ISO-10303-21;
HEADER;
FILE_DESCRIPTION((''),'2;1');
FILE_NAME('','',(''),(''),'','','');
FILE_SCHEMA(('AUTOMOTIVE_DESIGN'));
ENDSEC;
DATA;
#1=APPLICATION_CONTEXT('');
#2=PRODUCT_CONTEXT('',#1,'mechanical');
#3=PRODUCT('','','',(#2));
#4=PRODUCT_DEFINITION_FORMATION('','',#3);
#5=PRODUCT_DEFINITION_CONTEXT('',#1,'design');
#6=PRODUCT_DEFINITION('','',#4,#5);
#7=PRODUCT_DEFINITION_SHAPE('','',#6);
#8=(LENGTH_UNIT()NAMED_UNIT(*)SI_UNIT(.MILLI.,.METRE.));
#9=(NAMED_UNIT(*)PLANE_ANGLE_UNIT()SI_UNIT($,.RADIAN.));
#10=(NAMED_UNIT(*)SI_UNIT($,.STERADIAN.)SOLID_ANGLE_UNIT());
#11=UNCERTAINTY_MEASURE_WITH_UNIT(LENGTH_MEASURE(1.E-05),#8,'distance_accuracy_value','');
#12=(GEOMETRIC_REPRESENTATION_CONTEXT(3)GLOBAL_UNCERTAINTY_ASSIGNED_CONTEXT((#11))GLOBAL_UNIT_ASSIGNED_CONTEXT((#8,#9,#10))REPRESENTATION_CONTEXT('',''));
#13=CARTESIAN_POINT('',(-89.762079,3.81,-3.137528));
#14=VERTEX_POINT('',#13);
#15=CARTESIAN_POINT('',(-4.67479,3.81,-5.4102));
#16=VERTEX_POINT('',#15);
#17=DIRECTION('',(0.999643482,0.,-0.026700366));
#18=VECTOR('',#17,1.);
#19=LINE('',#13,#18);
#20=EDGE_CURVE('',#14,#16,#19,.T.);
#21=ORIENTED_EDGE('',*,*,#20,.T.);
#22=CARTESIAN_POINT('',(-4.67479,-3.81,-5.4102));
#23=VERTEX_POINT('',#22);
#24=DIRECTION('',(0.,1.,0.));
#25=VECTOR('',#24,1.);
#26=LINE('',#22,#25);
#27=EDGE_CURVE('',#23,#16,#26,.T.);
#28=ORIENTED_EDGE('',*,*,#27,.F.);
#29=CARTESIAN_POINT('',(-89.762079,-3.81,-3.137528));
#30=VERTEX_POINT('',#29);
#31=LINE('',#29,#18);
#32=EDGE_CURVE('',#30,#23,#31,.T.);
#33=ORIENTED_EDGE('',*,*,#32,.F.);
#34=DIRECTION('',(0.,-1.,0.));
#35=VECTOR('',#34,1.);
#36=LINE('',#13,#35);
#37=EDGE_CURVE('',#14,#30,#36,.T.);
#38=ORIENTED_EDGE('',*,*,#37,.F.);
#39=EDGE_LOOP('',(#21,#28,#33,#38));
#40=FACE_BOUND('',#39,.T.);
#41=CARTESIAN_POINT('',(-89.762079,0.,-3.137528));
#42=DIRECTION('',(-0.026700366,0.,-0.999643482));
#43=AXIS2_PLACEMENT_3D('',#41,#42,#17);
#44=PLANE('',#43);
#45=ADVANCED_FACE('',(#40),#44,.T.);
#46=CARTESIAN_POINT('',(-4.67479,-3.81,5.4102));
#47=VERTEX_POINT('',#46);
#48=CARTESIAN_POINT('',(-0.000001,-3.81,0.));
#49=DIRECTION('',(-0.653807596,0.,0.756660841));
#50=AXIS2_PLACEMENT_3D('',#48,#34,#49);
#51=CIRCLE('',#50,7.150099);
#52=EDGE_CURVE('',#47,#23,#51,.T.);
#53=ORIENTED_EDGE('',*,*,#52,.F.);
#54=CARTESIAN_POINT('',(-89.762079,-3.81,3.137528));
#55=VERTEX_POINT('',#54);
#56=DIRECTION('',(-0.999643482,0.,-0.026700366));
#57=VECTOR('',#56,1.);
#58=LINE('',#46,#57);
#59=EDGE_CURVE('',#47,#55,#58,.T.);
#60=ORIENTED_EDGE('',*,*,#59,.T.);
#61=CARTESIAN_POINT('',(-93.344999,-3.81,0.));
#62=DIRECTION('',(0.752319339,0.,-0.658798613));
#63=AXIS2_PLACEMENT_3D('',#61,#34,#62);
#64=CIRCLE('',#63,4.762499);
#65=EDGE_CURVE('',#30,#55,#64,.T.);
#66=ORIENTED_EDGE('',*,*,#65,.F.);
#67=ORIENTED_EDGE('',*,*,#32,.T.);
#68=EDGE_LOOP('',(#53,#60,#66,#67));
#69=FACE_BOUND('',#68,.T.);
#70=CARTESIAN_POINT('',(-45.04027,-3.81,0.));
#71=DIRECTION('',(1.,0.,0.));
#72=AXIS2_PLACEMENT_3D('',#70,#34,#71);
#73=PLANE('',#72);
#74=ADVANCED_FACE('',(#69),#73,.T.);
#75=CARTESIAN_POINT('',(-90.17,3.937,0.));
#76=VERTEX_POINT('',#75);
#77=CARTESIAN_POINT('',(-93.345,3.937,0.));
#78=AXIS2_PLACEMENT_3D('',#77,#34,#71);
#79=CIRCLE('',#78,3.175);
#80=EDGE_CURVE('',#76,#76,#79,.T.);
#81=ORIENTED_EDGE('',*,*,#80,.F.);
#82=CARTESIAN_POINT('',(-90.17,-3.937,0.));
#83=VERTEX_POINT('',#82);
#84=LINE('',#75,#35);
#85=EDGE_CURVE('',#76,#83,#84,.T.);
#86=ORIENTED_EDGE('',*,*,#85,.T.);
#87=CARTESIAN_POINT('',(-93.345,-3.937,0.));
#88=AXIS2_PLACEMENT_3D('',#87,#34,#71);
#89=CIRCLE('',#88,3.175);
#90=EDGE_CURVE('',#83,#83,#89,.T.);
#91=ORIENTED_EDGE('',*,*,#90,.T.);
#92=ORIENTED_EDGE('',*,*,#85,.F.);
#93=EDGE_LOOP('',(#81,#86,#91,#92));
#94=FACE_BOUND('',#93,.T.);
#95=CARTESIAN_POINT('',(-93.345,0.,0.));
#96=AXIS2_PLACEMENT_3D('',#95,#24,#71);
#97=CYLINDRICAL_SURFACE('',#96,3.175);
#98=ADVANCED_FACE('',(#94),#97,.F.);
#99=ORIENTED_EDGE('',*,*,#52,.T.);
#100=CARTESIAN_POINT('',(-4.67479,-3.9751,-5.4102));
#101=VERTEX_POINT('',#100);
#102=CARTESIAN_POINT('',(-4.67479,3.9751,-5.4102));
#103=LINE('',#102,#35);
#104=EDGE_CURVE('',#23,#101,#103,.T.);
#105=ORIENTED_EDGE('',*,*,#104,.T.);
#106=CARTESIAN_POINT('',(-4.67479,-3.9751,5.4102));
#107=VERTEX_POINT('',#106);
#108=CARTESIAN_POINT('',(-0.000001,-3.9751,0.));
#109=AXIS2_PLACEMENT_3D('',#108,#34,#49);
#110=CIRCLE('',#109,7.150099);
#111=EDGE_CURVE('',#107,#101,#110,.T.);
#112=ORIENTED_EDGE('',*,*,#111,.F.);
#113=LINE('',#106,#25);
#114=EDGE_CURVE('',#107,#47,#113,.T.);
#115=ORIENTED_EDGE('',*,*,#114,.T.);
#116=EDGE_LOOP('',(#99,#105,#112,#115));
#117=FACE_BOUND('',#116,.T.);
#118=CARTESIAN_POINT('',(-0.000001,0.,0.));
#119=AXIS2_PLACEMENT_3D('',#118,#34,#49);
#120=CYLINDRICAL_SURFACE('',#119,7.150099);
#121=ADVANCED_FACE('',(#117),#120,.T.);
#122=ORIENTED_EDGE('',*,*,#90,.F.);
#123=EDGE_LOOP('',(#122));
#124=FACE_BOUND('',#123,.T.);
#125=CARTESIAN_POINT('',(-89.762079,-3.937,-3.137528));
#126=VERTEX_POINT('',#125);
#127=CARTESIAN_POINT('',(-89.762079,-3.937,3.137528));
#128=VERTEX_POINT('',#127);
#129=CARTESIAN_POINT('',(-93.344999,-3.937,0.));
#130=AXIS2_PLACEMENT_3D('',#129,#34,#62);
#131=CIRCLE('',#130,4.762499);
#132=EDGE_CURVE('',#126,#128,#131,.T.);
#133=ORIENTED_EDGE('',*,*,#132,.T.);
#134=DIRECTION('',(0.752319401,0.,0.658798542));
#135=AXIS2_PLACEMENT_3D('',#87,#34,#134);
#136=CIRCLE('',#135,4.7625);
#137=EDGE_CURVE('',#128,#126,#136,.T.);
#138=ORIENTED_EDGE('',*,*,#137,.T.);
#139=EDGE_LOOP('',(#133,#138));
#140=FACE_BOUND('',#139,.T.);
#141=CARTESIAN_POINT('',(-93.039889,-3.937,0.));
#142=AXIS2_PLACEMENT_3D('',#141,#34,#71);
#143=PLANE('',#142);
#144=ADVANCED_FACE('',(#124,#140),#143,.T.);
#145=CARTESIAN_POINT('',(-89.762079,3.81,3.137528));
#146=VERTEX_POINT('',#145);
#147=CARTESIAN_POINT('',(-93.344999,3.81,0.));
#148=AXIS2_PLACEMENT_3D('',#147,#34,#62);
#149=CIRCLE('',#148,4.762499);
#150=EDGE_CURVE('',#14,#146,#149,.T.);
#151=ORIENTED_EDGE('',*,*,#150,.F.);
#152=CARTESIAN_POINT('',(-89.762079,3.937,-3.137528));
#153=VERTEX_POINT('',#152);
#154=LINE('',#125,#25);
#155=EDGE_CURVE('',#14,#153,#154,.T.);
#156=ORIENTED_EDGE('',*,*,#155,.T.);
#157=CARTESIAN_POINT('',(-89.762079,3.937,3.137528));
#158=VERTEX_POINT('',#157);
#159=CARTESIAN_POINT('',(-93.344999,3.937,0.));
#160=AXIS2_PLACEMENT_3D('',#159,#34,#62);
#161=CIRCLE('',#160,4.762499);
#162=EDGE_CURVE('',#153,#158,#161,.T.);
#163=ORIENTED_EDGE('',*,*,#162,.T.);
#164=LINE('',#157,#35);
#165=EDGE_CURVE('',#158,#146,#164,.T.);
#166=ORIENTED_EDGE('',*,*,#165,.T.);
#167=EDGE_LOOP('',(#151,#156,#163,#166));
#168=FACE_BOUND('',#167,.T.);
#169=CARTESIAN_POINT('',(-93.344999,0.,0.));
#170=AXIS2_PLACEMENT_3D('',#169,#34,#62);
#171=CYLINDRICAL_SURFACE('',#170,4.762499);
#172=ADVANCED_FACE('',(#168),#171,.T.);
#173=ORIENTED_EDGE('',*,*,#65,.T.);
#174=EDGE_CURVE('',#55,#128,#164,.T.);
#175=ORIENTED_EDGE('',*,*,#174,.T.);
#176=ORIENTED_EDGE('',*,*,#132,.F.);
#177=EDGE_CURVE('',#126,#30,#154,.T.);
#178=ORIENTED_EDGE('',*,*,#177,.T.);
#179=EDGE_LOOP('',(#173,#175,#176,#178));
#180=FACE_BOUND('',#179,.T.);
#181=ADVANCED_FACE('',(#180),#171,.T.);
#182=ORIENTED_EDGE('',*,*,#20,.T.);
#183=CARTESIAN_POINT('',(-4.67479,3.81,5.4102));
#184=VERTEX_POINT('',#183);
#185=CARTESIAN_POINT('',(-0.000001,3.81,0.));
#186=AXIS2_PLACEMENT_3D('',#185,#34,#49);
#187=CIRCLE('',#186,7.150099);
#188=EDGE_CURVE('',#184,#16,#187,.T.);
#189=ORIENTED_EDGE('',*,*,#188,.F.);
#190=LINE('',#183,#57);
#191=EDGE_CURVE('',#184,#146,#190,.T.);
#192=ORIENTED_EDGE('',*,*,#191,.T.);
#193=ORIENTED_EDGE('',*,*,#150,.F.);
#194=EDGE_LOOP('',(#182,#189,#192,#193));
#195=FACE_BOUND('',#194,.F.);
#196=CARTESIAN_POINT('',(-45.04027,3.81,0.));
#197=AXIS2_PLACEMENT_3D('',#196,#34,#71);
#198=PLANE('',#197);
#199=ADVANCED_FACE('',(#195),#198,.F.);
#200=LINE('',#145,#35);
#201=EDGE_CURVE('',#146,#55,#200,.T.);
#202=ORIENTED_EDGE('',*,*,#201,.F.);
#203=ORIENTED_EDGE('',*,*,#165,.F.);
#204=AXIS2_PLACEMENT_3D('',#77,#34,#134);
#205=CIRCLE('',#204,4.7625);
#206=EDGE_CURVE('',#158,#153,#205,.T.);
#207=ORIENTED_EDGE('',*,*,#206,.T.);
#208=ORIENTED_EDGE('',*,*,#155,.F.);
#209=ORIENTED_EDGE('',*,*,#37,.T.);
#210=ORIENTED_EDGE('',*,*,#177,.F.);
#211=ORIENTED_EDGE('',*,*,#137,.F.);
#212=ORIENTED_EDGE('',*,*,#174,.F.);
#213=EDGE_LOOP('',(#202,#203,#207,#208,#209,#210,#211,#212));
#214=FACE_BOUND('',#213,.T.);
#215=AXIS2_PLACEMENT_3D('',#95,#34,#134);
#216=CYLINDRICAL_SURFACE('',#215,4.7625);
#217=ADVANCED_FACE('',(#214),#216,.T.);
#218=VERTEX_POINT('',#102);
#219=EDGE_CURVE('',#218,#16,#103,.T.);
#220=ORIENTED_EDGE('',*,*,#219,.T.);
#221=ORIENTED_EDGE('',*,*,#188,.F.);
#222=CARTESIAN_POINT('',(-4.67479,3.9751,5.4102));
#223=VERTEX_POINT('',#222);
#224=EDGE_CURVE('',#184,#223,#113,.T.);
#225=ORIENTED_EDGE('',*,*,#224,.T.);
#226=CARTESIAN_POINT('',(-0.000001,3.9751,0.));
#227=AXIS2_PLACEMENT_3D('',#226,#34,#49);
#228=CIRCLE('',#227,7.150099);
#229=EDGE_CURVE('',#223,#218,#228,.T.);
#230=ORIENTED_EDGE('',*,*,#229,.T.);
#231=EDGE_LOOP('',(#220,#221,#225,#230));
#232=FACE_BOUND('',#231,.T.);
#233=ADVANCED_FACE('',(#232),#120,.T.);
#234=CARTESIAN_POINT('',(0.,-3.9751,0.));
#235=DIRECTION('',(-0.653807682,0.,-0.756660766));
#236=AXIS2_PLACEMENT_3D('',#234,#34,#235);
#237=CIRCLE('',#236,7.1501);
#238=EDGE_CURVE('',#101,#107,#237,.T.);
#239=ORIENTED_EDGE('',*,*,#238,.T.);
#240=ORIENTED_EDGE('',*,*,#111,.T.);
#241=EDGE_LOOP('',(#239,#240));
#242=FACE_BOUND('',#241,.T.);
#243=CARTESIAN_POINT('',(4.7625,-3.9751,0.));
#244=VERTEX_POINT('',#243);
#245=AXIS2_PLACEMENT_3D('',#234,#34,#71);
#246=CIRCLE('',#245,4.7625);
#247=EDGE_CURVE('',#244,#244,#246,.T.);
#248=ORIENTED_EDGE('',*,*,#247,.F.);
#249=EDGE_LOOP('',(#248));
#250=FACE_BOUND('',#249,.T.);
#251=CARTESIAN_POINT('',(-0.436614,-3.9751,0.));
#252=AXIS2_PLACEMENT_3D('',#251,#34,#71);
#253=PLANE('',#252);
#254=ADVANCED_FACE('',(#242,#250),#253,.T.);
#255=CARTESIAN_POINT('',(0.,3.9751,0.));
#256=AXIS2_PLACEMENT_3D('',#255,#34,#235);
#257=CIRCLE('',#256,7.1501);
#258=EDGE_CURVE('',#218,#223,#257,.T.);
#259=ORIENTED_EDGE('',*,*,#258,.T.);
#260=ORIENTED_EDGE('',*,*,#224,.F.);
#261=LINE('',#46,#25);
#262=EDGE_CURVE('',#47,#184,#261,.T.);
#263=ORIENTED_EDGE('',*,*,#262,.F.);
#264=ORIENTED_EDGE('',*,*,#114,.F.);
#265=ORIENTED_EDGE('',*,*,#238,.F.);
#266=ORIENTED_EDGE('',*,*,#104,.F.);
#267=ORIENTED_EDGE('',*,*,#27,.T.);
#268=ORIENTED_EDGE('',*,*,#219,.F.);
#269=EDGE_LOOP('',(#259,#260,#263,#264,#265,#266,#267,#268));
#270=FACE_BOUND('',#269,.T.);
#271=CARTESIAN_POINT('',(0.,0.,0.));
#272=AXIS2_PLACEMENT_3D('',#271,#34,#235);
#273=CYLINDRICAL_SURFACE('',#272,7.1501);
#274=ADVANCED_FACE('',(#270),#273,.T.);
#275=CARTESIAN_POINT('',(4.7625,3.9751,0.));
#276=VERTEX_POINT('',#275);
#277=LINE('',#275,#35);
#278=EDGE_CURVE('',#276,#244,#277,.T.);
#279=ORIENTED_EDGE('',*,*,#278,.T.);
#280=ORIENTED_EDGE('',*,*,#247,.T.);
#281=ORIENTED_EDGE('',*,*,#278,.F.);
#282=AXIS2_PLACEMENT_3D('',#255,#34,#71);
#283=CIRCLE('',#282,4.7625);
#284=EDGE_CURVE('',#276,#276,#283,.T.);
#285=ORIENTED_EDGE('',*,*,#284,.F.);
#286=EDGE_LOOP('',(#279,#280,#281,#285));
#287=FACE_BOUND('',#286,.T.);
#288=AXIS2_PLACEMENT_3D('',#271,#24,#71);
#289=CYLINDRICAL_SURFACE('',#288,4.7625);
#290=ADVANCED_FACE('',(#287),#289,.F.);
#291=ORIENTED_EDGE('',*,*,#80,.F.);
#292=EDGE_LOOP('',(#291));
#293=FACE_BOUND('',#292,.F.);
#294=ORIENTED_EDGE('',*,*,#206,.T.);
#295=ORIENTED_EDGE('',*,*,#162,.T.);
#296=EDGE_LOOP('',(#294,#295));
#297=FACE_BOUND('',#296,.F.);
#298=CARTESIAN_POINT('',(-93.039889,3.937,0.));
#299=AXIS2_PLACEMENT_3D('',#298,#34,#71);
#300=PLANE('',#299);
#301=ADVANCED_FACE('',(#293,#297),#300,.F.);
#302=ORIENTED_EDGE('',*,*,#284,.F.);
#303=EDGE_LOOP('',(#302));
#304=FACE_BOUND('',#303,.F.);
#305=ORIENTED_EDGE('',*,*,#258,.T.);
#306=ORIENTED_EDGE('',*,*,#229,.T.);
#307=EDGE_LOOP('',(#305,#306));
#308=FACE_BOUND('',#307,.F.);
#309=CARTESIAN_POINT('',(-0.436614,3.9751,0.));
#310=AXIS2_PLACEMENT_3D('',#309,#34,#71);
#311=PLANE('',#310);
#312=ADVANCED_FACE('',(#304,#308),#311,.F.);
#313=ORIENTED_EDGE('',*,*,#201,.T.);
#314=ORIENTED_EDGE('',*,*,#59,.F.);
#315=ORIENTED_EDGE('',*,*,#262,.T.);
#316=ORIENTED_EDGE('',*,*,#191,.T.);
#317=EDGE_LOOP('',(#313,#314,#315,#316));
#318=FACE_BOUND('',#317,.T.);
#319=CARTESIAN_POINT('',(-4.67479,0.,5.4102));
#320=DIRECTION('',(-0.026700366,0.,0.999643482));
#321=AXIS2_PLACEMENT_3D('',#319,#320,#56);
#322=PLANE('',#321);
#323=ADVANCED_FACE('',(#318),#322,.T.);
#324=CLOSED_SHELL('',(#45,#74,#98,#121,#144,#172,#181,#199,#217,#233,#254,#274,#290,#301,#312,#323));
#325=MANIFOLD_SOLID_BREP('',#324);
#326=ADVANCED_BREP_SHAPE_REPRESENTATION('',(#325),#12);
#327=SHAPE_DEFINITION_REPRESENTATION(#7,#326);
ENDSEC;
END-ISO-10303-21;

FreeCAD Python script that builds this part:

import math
import FreeCAD as App
import Part
import Sketcher
Q = App.Units.Quantity

doc = App.newDocument("Part")
body = doc.addObject("PartDesign::Body", "Body")

# Sketch on XZ plane
sketch1 = doc.addObject("Sketcher::SketchObject", "Sketch")
body.addObject(sketch1)
sketch1.AttachmentSupport = (doc.XZ_Plane, [""])
sketch1.MapMode = "FlatFace"
sketch1.addGeometry([
    Part.LineSegment(App.Vector(-4.7, 5.4, 0), App.Vector(-89.8, 3.1, 0)),  # 0
    Part.ArcOfCircle(Part.Circle(App.Vector(-93.3, 0, 0), App.Vector(0, 0, 1), 4.8), math.radians(41), math.radians(319)),  # 1
    Part.LineSegment(App.Vector(-89.8, -3.1, 0), App.Vector(-4.7, -5.4, 0)),  # 2
    Part.ArcOfCircle(Part.Circle(App.Vector(0, 0, 0), App.Vector(0, 0, 1), 7.2), math.radians(-131), math.radians(131)),  # 3
    Part.Circle(App.Vector(-93.3, 0, 0), App.Vector(0, 0, 1), 3.2),  # 4
    Part.Circle(App.Vector(0, 0, 0), App.Vector(0, 0, 1), 4.8),  # 5
], False)
sketch1.addConstraint([
    Sketcher.Constraint("Coincident", 0, 2, 1, 1),
    Sketcher.Constraint("Coincident", 1, 2, 2, 1),
    Sketcher.Constraint("Coincident", 2, 2, 3, 1),
    Sketcher.Constraint("Coincident", 3, 2, 0, 1),
    Sketcher.Constraint("Coincident", 3, 3, -1, 1),
    Sketcher.Constraint("Coincident", 5, 3, -1, 1),
    Sketcher.Constraint("Coincident", 4, 3, 1, 3),
    Sketcher.Constraint("Equal", 1, 5),
    Sketcher.Constraint("Symmetric", 0, 2, 1, 2, -1),
    Sketcher.Constraint("Vertical", 2, 2, 3, 2),
    Sketcher.Constraint("Diameter", 4, Q("0.25 in")),
    Sketcher.Constraint("Diameter", 5, Q("0.375 in")),
    Sketcher.Constraint("Radius", 3, Q("0.2815 in")),
    Sketcher.Constraint("Angle", 0, Q("-178.47 deg")),
    Sketcher.Constraint("DistanceX", 1, 3, -1, 1, Q("3.675 in")),
    Sketcher.Constraint("DistanceY", 2, 2, -1, 1, Q("0.213 in")),
])
pad1 = doc.addObject("PartDesign::Pad", "Pad")
body.addObject(pad1)
pad1.Profile = sketch1
pad1.Length = Q("0.3 in")
pad1.Midplane = True

# Sketch on XZ plane
sketch2 = doc.addObject("Sketcher::SketchObject", "Sketch001")
body.addObject(sketch2)
sketch2.AttachmentSupport = (doc.XZ_Plane, [""])
sketch2.MapMode = "FlatFace"
sketch2.addGeometry([
    Part.ArcOfCircle(Part.Circle(App.Vector(0, 0, 0), App.Vector(0, 0, 1), 7.2), math.radians(131), math.radians(229)),
    Part.ArcOfCircle(Part.Circle(App.Vector(0, 0, 0), App.Vector(0, 0, 1), 7.2), math.radians(-131), math.radians(131)),
    Part.Circle(App.Vector(0, 0, 0), App.Vector(0, 0, 1), 4.8),
], False)
sketch2.addConstraint([
    Sketcher.Constraint("Tangent", 0, 1, 1, 2),
    Sketcher.Constraint("Coincident", 1, 1, 0, 2),
    Sketcher.Constraint("Coincident", 0, 3, -1, 1),
    Sketcher.Constraint("Coincident", 2, 3, -1, 1),
    Sketcher.Constraint("Vertical", 0, 1, 1, 1),
    Sketcher.Constraint("Diameter", 2, Q("0.375 in")),
    Sketcher.Constraint("Radius", 0, Q("0.2815 in")),
    Sketcher.Constraint("DistanceY", -1, 1, 0, 1, Q("0.213 in")),
])
pad2 = doc.addObject("PartDesign::Pad", "Pad001")
body.addObject(pad2)
pad2.Profile = sketch2
pad2.Length = Q("0.313 in")
pad2.Midplane = True

# Sketch on XZ plane
sketch3 = doc.addObject("Sketcher::SketchObject", "Sketch002")
body.addObject(sketch3)
sketch3.AttachmentSupport = (doc.XZ_Plane, [""])
sketch3.MapMode = "FlatFace"
sketch3.addGeometry([
    Part.ArcOfCircle(Part.Circle(App.Vector(-93.3, 0, 0), App.Vector(0, 0, 1), 4.8), math.radians(-41), math.radians(41)),
    Part.ArcOfCircle(Part.Circle(App.Vector(-93.3, 0, 0), App.Vector(0, 0, 1), 4.8), math.radians(41), math.radians(319)),
    Part.Circle(App.Vector(-93.3, 0, 0), App.Vector(0, 0, 1), 3.2),
], False)
sketch3.addConstraint([
    Sketcher.Constraint("Tangent", 0, 1, 1, 2),
    Sketcher.Constraint("Coincident", 1, 1, 0, 2),
    Sketcher.Constraint("Coincident", 2, 3, 0, 3),
    Sketcher.Constraint("Symmetric", 0, 1, 1, 1, -1),
    Sketcher.Constraint("Diameter", 2, Q("0.25 in")),
    Sketcher.Constraint("Radius", 0, Q("0.1875 in")),
    Sketcher.Constraint("DistanceX", 0, 3, -1, 1, Q("3.675 in")),
    Sketcher.Constraint("DistanceX", 0, 1, -1, 1, 89.762079),
])
pad3 = doc.addObject("PartDesign::Pad", "Pad002")
body.addObject(pad3)
pad3.Profile = sketch3
pad3.Length = Q("0.31 in")
pad3.Midplane = True

doc.recompute()
